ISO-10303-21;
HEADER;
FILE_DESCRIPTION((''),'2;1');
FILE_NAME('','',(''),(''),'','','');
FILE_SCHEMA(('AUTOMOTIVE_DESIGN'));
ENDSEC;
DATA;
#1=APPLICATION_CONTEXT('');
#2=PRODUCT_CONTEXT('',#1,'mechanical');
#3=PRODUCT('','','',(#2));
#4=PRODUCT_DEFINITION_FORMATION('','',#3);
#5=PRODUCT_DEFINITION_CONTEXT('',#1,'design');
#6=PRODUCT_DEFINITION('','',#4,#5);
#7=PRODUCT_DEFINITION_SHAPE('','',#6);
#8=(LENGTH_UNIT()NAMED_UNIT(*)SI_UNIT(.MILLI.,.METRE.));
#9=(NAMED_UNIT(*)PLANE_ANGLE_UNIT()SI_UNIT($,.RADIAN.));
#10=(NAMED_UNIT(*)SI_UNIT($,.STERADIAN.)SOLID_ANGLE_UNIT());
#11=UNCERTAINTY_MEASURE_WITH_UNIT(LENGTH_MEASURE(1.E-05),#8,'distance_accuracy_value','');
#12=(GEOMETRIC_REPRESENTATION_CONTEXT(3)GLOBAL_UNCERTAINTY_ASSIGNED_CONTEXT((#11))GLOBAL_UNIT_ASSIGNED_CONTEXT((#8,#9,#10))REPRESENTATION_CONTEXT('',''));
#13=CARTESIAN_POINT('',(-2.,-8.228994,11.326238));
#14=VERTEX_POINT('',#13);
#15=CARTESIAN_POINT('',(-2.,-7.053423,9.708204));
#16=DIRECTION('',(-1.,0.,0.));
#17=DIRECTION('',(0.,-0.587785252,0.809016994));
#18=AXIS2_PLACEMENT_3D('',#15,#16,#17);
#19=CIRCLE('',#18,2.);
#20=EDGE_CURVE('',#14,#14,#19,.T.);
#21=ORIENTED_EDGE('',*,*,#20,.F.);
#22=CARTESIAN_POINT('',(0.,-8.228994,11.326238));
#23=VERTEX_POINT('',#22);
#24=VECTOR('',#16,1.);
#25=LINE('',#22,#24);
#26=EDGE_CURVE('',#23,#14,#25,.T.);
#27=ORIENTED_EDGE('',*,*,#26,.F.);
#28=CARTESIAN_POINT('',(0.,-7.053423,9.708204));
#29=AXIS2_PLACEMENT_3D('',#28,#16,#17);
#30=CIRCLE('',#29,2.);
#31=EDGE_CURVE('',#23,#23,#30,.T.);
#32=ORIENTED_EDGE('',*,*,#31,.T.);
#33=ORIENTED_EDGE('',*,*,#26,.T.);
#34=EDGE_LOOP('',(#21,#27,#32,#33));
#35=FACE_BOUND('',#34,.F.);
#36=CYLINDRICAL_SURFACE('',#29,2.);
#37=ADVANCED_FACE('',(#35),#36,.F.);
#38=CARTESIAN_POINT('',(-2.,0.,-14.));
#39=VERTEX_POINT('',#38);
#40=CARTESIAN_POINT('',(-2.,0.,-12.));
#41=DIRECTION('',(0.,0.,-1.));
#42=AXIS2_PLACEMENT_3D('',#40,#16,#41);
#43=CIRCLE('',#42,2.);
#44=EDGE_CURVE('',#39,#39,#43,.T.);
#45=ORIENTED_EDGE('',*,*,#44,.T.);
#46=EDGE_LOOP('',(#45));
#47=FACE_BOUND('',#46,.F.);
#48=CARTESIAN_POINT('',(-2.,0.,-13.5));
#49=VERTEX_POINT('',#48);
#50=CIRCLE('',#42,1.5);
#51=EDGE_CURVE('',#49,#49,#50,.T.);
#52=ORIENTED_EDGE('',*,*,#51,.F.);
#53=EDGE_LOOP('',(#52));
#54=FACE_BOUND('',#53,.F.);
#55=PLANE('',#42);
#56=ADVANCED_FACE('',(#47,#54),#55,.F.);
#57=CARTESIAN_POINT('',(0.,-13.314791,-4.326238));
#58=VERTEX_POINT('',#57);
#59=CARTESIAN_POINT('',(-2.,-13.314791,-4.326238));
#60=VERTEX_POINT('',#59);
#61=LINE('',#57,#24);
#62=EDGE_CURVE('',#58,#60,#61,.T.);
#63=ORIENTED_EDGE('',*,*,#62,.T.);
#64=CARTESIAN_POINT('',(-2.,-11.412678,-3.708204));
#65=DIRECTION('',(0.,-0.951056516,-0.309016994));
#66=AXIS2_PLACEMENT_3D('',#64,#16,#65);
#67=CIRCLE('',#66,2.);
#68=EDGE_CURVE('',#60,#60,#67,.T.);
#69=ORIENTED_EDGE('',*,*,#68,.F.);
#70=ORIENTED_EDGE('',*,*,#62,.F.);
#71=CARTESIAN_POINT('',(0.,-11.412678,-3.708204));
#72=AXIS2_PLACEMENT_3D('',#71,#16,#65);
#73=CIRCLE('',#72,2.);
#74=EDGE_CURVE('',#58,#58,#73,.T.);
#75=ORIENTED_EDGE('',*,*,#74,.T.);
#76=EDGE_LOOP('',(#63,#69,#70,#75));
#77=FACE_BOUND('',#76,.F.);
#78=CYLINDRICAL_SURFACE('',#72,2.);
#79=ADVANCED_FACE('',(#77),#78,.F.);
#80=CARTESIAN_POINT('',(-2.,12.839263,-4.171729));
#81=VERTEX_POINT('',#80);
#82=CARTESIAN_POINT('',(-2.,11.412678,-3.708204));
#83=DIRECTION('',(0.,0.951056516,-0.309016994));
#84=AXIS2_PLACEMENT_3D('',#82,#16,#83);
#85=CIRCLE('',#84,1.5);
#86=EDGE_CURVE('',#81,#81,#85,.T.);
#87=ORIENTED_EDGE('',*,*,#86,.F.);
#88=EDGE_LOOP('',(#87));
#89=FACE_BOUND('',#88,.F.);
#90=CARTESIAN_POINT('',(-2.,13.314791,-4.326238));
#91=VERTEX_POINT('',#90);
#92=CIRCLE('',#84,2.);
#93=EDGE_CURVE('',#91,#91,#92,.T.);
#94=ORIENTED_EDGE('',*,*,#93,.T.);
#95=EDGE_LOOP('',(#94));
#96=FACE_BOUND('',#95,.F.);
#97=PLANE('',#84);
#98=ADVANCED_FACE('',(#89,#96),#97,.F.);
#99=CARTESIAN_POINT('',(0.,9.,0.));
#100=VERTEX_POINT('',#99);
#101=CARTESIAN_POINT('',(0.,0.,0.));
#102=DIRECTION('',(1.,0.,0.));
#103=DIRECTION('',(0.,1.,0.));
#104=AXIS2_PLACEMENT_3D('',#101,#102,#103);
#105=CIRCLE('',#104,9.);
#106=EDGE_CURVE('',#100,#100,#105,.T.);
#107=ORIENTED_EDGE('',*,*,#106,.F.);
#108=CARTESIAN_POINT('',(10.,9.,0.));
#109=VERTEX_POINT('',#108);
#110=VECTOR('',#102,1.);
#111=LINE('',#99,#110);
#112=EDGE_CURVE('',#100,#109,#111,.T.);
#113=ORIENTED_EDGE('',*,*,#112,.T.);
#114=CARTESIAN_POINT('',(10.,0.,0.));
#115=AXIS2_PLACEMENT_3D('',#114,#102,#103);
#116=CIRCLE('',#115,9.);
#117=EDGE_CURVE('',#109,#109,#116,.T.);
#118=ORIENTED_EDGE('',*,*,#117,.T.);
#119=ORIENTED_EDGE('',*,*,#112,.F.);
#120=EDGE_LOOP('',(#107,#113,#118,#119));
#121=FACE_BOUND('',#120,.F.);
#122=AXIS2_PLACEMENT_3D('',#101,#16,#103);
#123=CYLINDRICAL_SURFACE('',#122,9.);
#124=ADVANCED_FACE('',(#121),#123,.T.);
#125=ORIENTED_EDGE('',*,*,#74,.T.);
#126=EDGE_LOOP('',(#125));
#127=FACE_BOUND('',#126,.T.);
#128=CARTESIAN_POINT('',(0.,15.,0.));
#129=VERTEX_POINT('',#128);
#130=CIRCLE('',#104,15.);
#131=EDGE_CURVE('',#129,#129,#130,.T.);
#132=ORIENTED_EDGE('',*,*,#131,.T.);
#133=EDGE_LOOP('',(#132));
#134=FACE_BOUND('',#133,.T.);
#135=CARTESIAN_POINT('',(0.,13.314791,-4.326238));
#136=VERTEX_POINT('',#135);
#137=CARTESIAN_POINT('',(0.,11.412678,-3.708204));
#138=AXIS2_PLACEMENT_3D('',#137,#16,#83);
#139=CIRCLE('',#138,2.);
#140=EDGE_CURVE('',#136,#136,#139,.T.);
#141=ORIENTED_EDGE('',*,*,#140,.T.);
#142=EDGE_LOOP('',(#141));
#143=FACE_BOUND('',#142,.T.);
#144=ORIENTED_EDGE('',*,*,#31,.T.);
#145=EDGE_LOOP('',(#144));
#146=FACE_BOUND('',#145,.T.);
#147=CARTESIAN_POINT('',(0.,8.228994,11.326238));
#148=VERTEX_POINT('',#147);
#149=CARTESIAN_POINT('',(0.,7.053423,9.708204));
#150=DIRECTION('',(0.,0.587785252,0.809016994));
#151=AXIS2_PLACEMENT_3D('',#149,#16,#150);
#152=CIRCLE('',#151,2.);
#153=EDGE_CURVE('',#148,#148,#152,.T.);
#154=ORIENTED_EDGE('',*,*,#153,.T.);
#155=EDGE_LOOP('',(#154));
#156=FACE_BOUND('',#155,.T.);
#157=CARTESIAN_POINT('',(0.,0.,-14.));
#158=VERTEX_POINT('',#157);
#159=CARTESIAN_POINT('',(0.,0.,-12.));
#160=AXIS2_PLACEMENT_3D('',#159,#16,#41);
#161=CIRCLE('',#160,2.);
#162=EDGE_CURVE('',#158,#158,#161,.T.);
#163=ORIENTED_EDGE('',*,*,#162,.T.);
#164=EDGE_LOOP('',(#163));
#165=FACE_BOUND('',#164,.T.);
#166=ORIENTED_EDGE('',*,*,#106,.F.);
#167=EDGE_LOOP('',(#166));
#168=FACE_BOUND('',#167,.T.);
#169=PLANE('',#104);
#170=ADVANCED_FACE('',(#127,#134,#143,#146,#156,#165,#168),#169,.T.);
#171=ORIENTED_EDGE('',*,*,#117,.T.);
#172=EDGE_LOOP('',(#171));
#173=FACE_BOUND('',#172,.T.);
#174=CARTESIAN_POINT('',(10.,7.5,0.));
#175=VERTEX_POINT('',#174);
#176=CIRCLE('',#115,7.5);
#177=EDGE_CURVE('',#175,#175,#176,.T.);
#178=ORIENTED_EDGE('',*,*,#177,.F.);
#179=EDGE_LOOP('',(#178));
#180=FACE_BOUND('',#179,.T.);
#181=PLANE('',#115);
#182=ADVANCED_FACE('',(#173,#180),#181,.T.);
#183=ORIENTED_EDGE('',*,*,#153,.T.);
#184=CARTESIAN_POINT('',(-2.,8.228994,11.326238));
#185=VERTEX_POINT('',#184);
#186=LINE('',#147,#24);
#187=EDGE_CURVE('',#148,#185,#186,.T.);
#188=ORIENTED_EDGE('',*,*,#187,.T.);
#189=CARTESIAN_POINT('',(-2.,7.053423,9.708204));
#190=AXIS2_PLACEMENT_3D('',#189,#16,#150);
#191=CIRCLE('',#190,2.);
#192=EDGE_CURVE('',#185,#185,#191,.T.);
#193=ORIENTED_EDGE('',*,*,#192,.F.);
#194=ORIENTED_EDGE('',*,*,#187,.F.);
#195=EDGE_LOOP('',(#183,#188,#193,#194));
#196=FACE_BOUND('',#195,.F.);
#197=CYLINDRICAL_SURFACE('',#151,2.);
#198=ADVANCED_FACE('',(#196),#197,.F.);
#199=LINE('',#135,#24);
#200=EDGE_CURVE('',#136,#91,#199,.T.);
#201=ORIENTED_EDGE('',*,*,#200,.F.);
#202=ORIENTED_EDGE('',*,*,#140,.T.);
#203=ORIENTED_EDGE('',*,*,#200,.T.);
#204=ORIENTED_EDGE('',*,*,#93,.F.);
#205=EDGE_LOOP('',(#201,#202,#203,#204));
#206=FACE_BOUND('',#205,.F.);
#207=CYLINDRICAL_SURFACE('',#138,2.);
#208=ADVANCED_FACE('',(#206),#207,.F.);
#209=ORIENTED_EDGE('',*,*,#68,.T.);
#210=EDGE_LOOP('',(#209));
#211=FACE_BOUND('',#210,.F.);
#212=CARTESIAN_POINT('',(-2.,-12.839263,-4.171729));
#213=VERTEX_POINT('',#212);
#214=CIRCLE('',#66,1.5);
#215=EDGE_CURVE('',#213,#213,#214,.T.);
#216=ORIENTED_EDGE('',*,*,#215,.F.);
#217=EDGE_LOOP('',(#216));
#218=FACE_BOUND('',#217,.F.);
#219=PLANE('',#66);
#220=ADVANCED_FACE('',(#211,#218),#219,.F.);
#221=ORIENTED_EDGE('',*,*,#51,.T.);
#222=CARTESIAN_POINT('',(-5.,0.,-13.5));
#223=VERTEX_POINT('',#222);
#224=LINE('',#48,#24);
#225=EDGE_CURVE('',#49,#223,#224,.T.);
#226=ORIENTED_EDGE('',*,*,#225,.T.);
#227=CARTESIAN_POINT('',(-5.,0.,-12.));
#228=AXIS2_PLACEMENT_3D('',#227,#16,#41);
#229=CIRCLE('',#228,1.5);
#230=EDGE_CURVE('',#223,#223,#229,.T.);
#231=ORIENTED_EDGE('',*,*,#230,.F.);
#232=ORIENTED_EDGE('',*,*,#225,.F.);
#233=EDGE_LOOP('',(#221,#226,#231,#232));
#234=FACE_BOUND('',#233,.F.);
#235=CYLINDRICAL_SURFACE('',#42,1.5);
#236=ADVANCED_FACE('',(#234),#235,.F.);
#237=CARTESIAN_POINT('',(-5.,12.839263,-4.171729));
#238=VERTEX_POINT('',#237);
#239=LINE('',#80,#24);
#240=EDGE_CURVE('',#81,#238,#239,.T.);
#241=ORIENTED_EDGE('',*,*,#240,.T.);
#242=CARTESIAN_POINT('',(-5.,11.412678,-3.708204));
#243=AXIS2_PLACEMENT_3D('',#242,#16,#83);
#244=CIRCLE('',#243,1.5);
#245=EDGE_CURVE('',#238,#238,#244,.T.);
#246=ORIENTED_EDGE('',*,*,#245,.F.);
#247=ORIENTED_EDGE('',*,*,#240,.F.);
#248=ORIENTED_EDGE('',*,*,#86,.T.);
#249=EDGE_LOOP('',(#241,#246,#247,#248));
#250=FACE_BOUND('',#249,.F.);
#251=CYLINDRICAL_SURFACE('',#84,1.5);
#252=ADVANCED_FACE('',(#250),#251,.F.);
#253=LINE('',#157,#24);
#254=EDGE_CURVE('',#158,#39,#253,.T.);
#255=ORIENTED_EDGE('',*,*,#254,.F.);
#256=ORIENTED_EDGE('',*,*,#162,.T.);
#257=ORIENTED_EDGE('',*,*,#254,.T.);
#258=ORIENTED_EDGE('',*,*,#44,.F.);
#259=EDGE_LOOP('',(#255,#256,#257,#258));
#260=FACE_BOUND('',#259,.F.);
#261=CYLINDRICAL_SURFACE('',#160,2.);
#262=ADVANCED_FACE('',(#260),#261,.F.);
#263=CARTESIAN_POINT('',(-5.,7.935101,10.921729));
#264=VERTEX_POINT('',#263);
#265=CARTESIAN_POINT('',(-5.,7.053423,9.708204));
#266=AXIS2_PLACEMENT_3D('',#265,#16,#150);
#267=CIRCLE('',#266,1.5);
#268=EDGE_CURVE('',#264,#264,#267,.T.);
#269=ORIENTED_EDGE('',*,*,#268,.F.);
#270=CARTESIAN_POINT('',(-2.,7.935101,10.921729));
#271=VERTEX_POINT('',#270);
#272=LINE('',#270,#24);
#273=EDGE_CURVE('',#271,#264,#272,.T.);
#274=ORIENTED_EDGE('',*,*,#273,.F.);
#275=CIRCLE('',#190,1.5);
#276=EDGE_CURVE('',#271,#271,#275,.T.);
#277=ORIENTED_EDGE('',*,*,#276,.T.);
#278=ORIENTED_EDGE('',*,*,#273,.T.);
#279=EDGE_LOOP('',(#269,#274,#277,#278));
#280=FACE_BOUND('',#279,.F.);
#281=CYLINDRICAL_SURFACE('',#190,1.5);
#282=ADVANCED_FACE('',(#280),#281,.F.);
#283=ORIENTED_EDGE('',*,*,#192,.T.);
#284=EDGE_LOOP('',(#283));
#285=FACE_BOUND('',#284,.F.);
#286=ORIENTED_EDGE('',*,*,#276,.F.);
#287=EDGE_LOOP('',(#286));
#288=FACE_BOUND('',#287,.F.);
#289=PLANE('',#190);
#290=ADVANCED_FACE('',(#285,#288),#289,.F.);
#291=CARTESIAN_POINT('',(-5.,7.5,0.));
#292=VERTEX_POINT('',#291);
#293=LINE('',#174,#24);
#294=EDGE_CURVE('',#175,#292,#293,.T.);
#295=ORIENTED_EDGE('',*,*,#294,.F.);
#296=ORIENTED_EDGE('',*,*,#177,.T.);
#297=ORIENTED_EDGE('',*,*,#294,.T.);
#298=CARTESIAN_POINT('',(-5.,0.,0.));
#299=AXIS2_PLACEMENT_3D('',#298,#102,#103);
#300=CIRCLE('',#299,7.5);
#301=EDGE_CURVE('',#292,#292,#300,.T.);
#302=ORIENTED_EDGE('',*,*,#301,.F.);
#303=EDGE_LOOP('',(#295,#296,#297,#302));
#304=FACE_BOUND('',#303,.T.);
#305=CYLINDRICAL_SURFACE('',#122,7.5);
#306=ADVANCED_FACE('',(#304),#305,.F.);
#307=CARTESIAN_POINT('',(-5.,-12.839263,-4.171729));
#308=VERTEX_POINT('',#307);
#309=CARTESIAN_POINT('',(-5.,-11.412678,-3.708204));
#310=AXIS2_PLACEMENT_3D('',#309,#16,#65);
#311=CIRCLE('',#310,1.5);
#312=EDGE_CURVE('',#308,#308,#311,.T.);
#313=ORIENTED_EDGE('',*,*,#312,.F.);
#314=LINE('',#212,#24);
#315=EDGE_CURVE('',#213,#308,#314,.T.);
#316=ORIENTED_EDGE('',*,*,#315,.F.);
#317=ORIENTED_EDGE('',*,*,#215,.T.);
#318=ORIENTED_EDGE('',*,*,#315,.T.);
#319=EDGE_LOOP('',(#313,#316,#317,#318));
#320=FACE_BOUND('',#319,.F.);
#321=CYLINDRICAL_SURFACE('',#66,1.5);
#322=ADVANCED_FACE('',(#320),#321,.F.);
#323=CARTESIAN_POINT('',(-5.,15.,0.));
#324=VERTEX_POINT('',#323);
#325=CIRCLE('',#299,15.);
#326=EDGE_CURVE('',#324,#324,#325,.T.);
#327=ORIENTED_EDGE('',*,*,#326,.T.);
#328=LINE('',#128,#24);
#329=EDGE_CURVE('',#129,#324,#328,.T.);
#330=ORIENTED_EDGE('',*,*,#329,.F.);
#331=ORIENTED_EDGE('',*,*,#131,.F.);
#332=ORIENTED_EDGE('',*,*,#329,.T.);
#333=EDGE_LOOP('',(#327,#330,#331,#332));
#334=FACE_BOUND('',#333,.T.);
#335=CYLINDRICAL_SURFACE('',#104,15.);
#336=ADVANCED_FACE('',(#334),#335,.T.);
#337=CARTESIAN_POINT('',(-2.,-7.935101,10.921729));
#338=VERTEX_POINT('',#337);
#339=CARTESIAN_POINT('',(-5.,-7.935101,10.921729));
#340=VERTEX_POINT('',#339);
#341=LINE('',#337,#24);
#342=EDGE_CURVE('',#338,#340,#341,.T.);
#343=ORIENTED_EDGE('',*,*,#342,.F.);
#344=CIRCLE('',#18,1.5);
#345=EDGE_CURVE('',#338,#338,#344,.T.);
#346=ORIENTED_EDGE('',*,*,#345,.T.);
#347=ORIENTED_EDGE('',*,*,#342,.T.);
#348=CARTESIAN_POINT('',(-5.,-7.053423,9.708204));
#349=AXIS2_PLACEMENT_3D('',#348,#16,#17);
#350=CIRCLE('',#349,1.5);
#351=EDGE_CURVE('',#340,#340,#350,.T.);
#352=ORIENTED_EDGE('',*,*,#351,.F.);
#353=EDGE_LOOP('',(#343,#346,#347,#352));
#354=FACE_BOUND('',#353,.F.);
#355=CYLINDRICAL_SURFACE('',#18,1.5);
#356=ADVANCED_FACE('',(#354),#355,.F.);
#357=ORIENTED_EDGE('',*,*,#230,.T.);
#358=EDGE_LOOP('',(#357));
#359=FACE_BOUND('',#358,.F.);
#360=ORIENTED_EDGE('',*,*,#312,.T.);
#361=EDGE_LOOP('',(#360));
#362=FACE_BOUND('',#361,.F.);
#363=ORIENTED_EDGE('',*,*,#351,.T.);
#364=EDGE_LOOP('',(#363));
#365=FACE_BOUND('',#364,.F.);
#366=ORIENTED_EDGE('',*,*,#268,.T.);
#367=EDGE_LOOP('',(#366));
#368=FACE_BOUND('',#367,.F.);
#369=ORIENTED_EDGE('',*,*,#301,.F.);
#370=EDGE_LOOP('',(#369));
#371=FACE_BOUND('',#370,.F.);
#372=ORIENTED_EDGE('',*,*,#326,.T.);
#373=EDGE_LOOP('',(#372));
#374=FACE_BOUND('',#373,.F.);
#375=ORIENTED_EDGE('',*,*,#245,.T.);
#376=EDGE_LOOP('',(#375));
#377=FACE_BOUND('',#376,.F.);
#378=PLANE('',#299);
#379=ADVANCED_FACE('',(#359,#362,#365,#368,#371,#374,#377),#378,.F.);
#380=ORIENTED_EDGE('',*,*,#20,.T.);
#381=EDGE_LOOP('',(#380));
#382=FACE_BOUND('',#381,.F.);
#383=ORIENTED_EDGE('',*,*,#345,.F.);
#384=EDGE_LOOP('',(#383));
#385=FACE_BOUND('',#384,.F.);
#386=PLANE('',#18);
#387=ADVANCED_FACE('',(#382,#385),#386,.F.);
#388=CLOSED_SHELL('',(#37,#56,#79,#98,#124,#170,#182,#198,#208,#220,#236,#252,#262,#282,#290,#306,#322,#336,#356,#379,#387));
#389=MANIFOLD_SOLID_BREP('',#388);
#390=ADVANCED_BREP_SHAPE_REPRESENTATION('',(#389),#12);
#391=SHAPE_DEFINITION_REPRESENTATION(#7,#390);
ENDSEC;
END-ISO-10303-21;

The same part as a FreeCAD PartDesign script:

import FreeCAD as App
import Part
import Sketcher

V = App.Vector

doc = App.newDocument("Part")
params = doc.addObject("Spreadsheet::Sheet", "Params")
for row, (alias, value) in enumerate([
    ("sketch1_diameter", "30 mm"),
    ("sketch1_diameter2", "15 mm"),
    ("pad1_length", "5 mm"),
    ("sketch2_diameter", "18 mm"),
    ("sketch2_diameter2", "15 mm"),
    ("pad2_length", "10 mm"),
    ("sketch3_diameter", "3 mm"),
    ("hole_diameter", "3 mm"),
    ("hole_cbore_diameter", "4 mm"),
    ("hole_cbore_depth", "2 mm"),
], start=1):
    params.set(f"A{row}", alias)
    params.set(f"B{row}", "=" + value)
    params.setAlias(f"B{row}", alias)

body = doc.addObject("PartDesign::Body", "Body")

sketch1 = body.newObject("Sketcher::SketchObject", "Sketch")
sketch1.AttachmentSupport = (doc.getObject("YZ_Plane"), [""])
sketch1.MapMode = "FlatFace"
sketch1.addGeometry([
    Part.Circle(V(0, 0, 0), V(0, 0, 1), 15),
    Part.Circle(V(0, 0, 0), V(0, 0, 1), 8),
], False)
sketch1.addConstraint([
    Sketcher.Constraint("Coincident", 0, 3, -1, 1),
    Sketcher.Constraint("Coincident", 1, 3, -1, 1),
    Sketcher.Constraint("Diameter", 0, 30.0),
    Sketcher.Constraint("Diameter", 1, 15.0),
])
sketch1.setExpression("Constraints[2]", "Params.sketch1_diameter")
sketch1.setExpression("Constraints[3]", "Params.sketch1_diameter2")
pad1 = body.newObject("PartDesign::Pad", "Pad")
pad1.Profile = sketch1
pad1.setExpression("Length", "Params.pad1_length")
pad1.Reversed = True

sketch2 = body.newObject("Sketcher::SketchObject", "Sketch001")
sketch2.AttachmentSupport = (doc.getObject("YZ_Plane"), [""])
sketch2.MapMode = "FlatFace"
sketch2.addGeometry([
    Part.Circle(V(0, 0, 0), V(0, 0, 1), 9),
    Part.Circle(V(0, 0, 0), V(0, 0, 1), 8),
], False)
sketch2.addConstraint([
    Sketcher.Constraint("Coincident", 0, 3, -1, 1),
    Sketcher.Constraint("Coincident", 1, 3, -1, 1),
    Sketcher.Constraint("Diameter", 0, 18.0),
    Sketcher.Constraint("Diameter", 1, 15.0),
])
sketch2.setExpression("Constraints[2]", "Params.sketch2_diameter")
sketch2.setExpression("Constraints[3]", "Params.sketch2_diameter2")
pad2 = body.newObject("PartDesign::Pad", "Pad001")
pad2.Profile = sketch2
pad2.setExpression("Length", "Params.pad2_length")

sketch3 = body.newObject("Sketcher::SketchObject", "Sketch002")
sketch3.AttachmentSupport = (doc.getObject("YZ_Plane"), [""])
sketch3.MapMode = "FlatFace"
sketch3.addGeometry(Part.Circle(V(0, -12, 0), V(0, 0, 1), 1.5), False)
sketch3.addConstraint([
    Sketcher.Constraint("PointOnObject", 0, 3, -2),
    Sketcher.Constraint("Diameter", 0, 3.0),
    Sketcher.Constraint("DistanceY", 0, 3, -1, 1, 12.0),
])
sketch3.setExpression("Constraints[1]", "Params.sketch3_diameter")
doc.recompute()
hole = body.newObject("PartDesign::Hole", "Hole")
hole.Profile = sketch3
hole.ThreadType = "None"
hole.setExpression("Diameter", "Params.hole_diameter")
hole.DepthType = "ThroughAll"
hole.HoleCutType = "Counterbore"
hole.setExpression("HoleCutDiameter", "Params.hole_cbore_diameter")
hole.setExpression("HoleCutDepth", "Params.hole_cbore_depth")
doc.recompute()

polarpattern = body.newObject("PartDesign::PolarPattern", "PolarPattern")
polarpattern.Originals = [hole]
polarpattern.Axis = (doc.getObject("X_Axis"), [""])
polarpattern.Angle = 360
polarpattern.Occurrences = 5
body.Tip = polarpattern

doc.recompute()
